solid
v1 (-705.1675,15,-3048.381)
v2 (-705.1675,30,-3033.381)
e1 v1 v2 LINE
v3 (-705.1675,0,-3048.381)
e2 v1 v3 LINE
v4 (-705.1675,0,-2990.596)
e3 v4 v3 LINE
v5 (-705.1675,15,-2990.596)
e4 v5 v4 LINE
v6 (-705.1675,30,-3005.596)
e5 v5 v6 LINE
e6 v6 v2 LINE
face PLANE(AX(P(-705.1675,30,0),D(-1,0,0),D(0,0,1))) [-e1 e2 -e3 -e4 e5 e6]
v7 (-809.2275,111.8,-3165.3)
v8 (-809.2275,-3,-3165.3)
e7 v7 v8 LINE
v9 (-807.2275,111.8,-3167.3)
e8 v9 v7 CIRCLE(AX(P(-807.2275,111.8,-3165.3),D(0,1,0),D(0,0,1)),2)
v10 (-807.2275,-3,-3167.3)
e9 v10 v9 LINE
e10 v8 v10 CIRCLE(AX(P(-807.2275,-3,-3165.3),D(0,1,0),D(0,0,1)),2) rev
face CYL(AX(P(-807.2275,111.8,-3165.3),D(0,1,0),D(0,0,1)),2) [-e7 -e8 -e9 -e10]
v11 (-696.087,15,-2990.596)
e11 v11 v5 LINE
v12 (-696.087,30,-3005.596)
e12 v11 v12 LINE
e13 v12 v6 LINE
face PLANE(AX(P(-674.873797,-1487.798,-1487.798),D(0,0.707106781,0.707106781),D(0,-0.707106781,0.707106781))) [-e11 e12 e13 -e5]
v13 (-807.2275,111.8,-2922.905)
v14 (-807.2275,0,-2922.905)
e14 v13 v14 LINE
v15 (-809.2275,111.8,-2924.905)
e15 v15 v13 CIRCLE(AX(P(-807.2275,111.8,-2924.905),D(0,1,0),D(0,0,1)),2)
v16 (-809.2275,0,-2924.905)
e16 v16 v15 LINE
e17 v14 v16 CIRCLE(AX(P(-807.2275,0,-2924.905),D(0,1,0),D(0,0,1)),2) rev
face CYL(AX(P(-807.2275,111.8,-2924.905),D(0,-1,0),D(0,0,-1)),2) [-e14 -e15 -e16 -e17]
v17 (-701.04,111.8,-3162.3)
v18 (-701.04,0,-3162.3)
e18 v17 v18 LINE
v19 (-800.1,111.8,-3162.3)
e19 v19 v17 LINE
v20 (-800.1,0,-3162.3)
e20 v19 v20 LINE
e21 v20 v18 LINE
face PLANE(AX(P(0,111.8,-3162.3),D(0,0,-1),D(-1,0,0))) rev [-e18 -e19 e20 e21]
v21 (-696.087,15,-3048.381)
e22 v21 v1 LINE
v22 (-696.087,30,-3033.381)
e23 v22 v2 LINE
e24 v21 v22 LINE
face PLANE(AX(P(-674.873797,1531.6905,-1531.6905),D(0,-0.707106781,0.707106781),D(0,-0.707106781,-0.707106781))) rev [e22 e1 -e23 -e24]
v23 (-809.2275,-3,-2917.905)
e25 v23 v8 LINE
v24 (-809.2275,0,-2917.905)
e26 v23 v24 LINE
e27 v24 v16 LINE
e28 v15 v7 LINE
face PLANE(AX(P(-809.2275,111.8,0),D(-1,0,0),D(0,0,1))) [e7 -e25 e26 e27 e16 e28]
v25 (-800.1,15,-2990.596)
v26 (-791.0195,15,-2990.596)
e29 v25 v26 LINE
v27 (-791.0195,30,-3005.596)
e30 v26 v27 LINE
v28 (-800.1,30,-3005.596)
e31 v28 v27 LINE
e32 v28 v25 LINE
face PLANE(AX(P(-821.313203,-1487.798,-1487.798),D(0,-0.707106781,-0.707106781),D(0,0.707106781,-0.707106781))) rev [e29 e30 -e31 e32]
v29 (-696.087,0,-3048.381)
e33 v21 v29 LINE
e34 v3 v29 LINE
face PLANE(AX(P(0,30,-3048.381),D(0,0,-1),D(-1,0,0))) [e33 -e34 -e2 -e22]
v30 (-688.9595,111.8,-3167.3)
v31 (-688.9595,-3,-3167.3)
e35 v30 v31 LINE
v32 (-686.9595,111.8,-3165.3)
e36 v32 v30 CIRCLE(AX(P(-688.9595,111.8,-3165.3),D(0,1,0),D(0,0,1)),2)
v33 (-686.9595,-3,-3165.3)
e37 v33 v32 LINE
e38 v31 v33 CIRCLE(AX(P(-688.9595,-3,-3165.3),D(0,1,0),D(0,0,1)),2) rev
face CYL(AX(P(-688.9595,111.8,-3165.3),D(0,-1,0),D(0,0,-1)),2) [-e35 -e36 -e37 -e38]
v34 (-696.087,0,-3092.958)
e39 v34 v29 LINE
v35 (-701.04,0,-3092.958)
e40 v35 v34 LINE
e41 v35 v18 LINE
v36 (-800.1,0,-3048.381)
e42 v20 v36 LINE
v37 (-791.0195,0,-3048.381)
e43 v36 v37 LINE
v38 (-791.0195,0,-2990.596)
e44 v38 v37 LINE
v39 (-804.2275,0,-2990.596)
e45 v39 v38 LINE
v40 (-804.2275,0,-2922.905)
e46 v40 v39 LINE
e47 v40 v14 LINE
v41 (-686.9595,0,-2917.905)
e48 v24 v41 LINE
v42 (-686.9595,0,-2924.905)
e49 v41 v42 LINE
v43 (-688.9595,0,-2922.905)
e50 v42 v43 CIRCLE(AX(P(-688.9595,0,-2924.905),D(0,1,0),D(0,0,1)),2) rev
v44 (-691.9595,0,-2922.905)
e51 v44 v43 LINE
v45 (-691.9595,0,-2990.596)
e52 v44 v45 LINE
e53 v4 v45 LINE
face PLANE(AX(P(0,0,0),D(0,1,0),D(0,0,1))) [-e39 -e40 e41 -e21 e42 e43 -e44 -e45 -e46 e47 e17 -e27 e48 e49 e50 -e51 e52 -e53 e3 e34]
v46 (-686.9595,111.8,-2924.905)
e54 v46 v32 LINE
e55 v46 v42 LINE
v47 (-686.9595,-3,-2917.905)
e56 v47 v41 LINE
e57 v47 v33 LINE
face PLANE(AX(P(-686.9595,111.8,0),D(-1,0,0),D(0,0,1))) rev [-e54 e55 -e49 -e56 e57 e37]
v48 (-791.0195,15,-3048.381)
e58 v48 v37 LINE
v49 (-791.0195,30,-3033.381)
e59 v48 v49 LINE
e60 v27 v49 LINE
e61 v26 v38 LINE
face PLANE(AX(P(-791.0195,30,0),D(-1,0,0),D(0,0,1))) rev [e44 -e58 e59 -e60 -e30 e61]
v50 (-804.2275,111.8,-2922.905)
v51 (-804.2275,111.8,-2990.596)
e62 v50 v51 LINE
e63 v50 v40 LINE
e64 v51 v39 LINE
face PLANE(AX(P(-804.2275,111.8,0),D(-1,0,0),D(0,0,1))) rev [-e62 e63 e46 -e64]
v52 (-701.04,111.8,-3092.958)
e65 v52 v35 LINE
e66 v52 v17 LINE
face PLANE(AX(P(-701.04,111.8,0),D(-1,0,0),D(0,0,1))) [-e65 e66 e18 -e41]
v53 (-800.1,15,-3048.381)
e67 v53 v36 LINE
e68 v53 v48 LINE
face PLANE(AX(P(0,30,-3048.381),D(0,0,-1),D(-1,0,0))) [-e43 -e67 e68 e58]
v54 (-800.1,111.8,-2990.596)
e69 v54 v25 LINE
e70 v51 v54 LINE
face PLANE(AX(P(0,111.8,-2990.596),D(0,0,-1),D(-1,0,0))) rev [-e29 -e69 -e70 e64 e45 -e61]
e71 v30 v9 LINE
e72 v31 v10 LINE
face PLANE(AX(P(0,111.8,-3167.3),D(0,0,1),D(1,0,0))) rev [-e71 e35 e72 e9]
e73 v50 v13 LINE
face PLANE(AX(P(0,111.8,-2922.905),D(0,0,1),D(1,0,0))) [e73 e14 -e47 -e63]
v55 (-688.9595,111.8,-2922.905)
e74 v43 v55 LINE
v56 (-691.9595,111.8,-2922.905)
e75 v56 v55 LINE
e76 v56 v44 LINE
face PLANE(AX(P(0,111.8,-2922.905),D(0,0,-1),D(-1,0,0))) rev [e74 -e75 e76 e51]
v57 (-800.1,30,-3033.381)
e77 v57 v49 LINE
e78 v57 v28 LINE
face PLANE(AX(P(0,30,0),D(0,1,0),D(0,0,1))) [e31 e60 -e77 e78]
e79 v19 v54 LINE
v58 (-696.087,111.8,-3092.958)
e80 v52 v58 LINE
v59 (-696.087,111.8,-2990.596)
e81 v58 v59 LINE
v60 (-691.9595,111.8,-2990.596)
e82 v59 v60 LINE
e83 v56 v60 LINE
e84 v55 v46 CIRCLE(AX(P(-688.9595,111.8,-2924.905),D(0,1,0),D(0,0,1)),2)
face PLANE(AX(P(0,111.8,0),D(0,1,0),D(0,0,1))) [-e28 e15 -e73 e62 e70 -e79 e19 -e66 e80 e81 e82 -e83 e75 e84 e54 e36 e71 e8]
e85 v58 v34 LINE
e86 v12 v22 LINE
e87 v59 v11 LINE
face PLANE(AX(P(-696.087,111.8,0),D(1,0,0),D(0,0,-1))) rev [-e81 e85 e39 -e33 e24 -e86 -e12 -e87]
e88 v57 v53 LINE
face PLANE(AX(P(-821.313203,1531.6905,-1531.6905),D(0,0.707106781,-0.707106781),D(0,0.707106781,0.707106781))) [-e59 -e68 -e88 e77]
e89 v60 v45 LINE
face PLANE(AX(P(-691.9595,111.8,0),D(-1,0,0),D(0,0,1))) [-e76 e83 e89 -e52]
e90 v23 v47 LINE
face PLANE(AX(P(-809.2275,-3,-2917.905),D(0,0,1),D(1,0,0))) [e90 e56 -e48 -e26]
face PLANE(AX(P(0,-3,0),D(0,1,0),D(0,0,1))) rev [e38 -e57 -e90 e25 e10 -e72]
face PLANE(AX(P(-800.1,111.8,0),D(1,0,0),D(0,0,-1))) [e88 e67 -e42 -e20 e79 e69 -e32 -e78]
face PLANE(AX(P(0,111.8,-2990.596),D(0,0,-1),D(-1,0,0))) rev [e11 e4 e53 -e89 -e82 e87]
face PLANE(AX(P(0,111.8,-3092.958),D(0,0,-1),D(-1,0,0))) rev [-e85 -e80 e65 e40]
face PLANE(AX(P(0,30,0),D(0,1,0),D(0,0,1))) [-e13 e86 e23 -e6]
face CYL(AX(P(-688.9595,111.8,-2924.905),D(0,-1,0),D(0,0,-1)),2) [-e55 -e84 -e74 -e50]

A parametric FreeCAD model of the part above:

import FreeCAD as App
import Part
import Sketcher
from FreeCAD import Vector
Q = App.Units.Quantity


def edges_at(feature, points):
    """Names of the edges that pass closest to the given points."""
    edges = feature.Shape.Edges
    near = lambda p: min(range(len(edges)), key=lambda i: edges[i].distToShape(Part.Vertex(*p))[0])
    return sorted({f"Edge{near(p) + 1}" for p in points})


def add_polygon(sketch, points):
    """Adds a closed chain of lines whose ends are joined by coincident constraints."""
    first, n = sketch.GeometryCount, len(points)
    for a, b in zip(points, points[1:] + points[:1]):
        sketch.addGeometry(Part.LineSegment(App.Vector(*a, 0), App.Vector(*b, 0)), False)
    for i in range(n):
        sketch.addConstraint(Sketcher.Constraint("Coincident", first + i, 2, first + (i + 1) % n, 1))

doc = App.newDocument("Part")
body = doc.addObject("PartDesign::Body", "Body")

# Sketch on XZ plane
sketch1 = doc.addObject("Sketcher::SketchObject", "Sketch")
body.addObject(sketch1)
sketch1.AttachmentSupport = (doc.XZ_Plane, [""])
sketch1.MapMode = "FlatFace"
add_polygon(sketch1, [(-809.2275, -2922.905), (-804.2275, -2922.905), (-804.2275, -2990.596), (-800.1, -2990.596), (-800.1, -3162.3), (-701.04, -3162.3), (-701.04, -3092.958), (-696.087, -3092.958), (-696.087, -2990.596), (-691.9595, -2990.596), (-691.9595, -2922.905), (-686.9595, -2922.905), (-686.9595, -3167.3), (-809.2275, -3167.3)])  # lines 0-13
sketch1.addConstraint(Sketcher.Constraint("Horizontal", 0))
sketch1.addConstraint(Sketcher.Constraint("Vertical", 1))
sketch1.addConstraint(Sketcher.Constraint("Horizontal", 2))
sketch1.addConstraint(Sketcher.Constraint("Vertical", 3))
sketch1.addConstraint(Sketcher.Constraint("Horizontal", 4))
sketch1.addConstraint(Sketcher.Constraint("Vertical", 5))
sketch1.addConstraint(Sketcher.Constraint("Horizontal", 6))
sketch1.addConstraint(Sketcher.Constraint("Vertical", 7))
sketch1.addConstraint(Sketcher.Constraint("Horizontal", 8))
sketch1.addConstraint(Sketcher.Constraint("Vertical", 9))
sketch1.addConstraint(Sketcher.Constraint("Horizontal", 10))
sketch1.addConstraint(Sketcher.Constraint("Vertical", 11))
sketch1.addConstraint(Sketcher.Constraint("Horizontal", 12))
sketch1.addConstraint(Sketcher.Constraint("Vertical", 13))
sketch1.addConstraint(Sketcher.Constraint("Horizontal", 2, 2, 7, 2))
sketch1.addConstraint(Sketcher.Constraint("Horizontal", 0, 2, 9, 2))
sketch1.addConstraint(Sketcher.Constraint("Equal", 2, 8))
sketch1.addConstraint(Sketcher.Constraint("Equal", 0, 10))
sketch1.addConstraint(Sketcher.Constraint("DistanceX", 4, 1, 4, 2, Q("3.9 in")))
sketch1.addConstraint(Sketcher.Constraint("DistanceY", 3, 2, 3, 1, Q("6.76 in")))
sketch1.addConstraint(Sketcher.Constraint("DistanceY", 5, 1, 5, 2, Q("2.73 in")))
sketch1.addConstraint(Sketcher.Constraint("DistanceX", 2, 2, -1, 1, Q("31.5 in")))
sketch1.addConstraint(Sketcher.Constraint("DistanceY", 3, 2, -1, 1, Q("124.5 in")))
sketch1.addConstraint(Sketcher.Constraint("DistanceX", 6, 1, 6, 2, Q("0.195 in")))
sketch1.addConstraint(Sketcher.Constraint("DistanceY", 1, 2, 1, 1, Q("2.665 in")))
sketch1.addConstraint(Sketcher.Constraint("DistanceX", 1, 2, 8, 2, Q("4.42 in")))
sketch1.addConstraint(Sketcher.Constraint("DistanceX", 0, 1, 0, 2, Q("5 mm")))
sketch1.addConstraint(Sketcher.Constraint("DistanceY", 11, 2, 11, 1, Q("244.395 mm")))
pad1 = doc.addObject("PartDesign::Pad", "Pad")
body.addObject(pad1)
pad1.Profile = sketch1
pad1.Length = 111.8
pad1.Reversed = True

# Sketch on XZ plane
sketch2 = doc.addObject("Sketcher::SketchObject", "Sketch001")
body.addObject(sketch2)
sketch2.AttachmentSupport = (doc.XZ_Plane, [""])
sketch2.MapMode = "FlatFace"
add_polygon(sketch2, [(-809.2275, -2917.905), (-809.2275, -3167.3), (-686.9595, -3167.3), (-686.9595, -2917.905)])  # lines 0-3
sketch2.addConstraint(Sketcher.Constraint("Vertical", 0))
sketch2.addConstraint(Sketcher.Constraint("Horizontal", 1))
sketch2.addConstraint(Sketcher.Constraint("Vertical", 2))
sketch2.addConstraint(Sketcher.Constraint("Horizontal", 3))
sketch2.addConstraint(Sketcher.Constraint("DistanceX", 1, 1, 1, 2, Q("122.268 mm")))
sketch2.addConstraint(Sketcher.Constraint("DistanceY", 0, 2, 0, 1, Q("249.395 mm")))
sketch2.addConstraint(Sketcher.Constraint("DistanceX", 0, 2, -1, 1, Q("809.2275 mm")))
sketch2.addConstraint(Sketcher.Constraint("DistanceY", 0, 2, -1, 1, Q("3167.3 mm")))
pad2 = doc.addObject("PartDesign::Pad", "Pad001")
body.addObject(pad2)
pad2.Profile = sketch2
pad2.Length = 3

# Sketch on XZ plane
sketch3 = doc.addObject("Sketcher::SketchObject", "Sketch002")
body.addObject(sketch3)
sketch3.AttachmentSupport = (doc.XZ_Plane, [""])
sketch3.MapMode = "FlatFace"
add_polygon(sketch3, [(-800.1, -3048.381), (-800.1, -2990.596), (-791.0195, -2990.596), (-791.0195, -3048.381)])  # lines 0-3
add_polygon(sketch3, [(-705.1675, -3048.381), (-705.1675, -2990.596), (-696.087, -2990.596), (-696.087, -3048.381)])  # lines 4-7
sketch3.addConstraint(Sketcher.Constraint("Vertical", 0))
sketch3.addConstraint(Sketcher.Constraint("Horizontal", 1))
sketch3.addConstraint(Sketcher.Constraint("Vertical", 2))
sketch3.addConstraint(Sketcher.Constraint("Horizontal", 3))
sketch3.addConstraint(Sketcher.Constraint("Vertical", 4))
sketch3.addConstraint(Sketcher.Constraint("Horizontal", 5))
sketch3.addConstraint(Sketcher.Constraint("Vertical", 6))
sketch3.addConstraint(Sketcher.Constraint("Horizontal", 7))
sketch3.addConstraint(Sketcher.Constraint("Horizontal", 1, 2, 4, 2))
sketch3.addConstraint(Sketcher.Constraint("Horizontal", 3, 2, 6, 2))
sketch3.addConstraint(Sketcher.Constraint("Equal", 3, 5))
sketch3.addConstraint(Sketcher.Constraint("DistanceX", 0, 2, -1, 1, Q("31.5 in")))
sketch3.addConstraint(Sketcher.Constraint("DistanceY", 0, 1, 0, 2, Q("2.275 in")))
sketch3.addConstraint(Sketcher.Constraint("DistanceY", 0, 2, -1, 1, Q("117.74 in")))
sketch3.addConstraint(Sketcher.Constraint("DistanceX", 1, 2, 4, 2, Q("3.38 in")))
sketch3.addConstraint(Sketcher.Constraint("DistanceX", 1, 1, 1, 2, Q("0.3575 in")))
pad3 = doc.addObject("PartDesign::Pad", "Pad002")
body.addObject(pad3)
pad3.Profile = sketch3
pad3.Length = 30
pad3.Reversed = True

# Sketch on YZ plane
sketch4 = doc.addObject("Sketcher::SketchObject", "Sketch003")
body.addObject(sketch4)
sketch4.AttachmentSupport = (doc.YZ_Plane, [""])
sketch4.MapMode = "FlatFace"
sketch4.AttachmentOffset = App.Placement(Vector(0, 0, -31.1425 * 25.4), App.Rotation())
add_polygon(sketch4, [(30, -2990.596), (15, -2990.596), (30, -3005.596)])  # lines 0-2
add_polygon(sketch4, [(30, -3048.381), (30, -3033.381), (15, -3048.381)])  # lines 3-5
sketch4.addConstraint(Sketcher.Constraint("Horizontal", 0))
sketch4.addConstraint(Sketcher.Constraint("Vertical", 2))
sketch4.addConstraint(Sketcher.Constraint("Vertical", 3))
sketch4.addConstraint(Sketcher.Constraint("Horizontal", 5))
sketch4.addConstraint(Sketcher.Constraint("Perpendicular", 1, 4))
sketch4.addConstraint(Sketcher.Constraint("Vertical", 2, 2, 3, 2))
sketch4.addConstraint(Sketcher.Constraint("Vertical", 0, 2, 4, 2))
sketch4.addConstraint(Sketcher.Constraint("Equal", 5, 2))
sketch4.addConstraint(Sketcher.Constraint("DistanceY", 0, 2, -1, 1, Q("117.74 in")))
sketch4.addConstraint(Sketcher.Constraint("DistanceY", 4, 2, -1, 1, Q("120.015 in")))
sketch4.addConstraint(Sketcher.Constraint("DistanceX", 0, 2, 0, 1, Q("15 mm")))
sketch4.addConstraint(Sketcher.Constraint("DistanceX", -1, 1, 0, 2, Q("15 mm")))
pocket1 = doc.addObject("PartDesign::Pocket", "Pocket")
body.addObject(pocket1)
pocket1.Profile = sketch4
pocket1.Length = Q("0.3575 in")

# Sketch on YZ plane
sketch5 = doc.addObject("Sketcher::SketchObject", "Sketch004")
body.addObject(sketch5)
sketch5.AttachmentSupport = (doc.YZ_Plane, [""])
sketch5.MapMode = "FlatFace"
sketch5.AttachmentOffset = App.Placement(Vector(0, 0, -27.7625 * 25.4), App.Rotation())
add_polygon(sketch5, [(30, -3048.381), (15, -3048.381), (30, -3033.381)])  # lines 0-2
add_polygon(sketch5, [(30, -2990.596), (30, -3005.596), (15, -2990.596)])  # lines 3-5
sketch5.addConstraint(Sketcher.Constraint("Horizontal", 0))
sketch5.addConstraint(Sketcher.Constraint("Vertical", 2))
sketch5.addConstraint(Sketcher.Constraint("Vertical", 3))
sketch5.addConstraint(Sketcher.Constraint("Horizontal", 5))
sketch5.addConstraint(Sketcher.Constraint("Perpendicular", 1, 4))
sketch5.addConstraint(Sketcher.Constraint("Vertical", 2, 2, 3, 2))
sketch5.addConstraint(Sketcher.Constraint("Vertical", 0, 2, 4, 2))
sketch5.addConstraint(Sketcher.Constraint("Equal", 5, 2))
sketch5.addConstraint(Sketcher.Constraint("DistanceY", 4, 2, -1, 1, Q("117.74 in")))
sketch5.addConstraint(Sketcher.Constraint("DistanceY", 0, 2, -1, 1, Q("120.015 in")))
sketch5.addConstraint(Sketcher.Constraint("DistanceX", 0, 2, 0, 1, Q("15 mm")))
sketch5.addConstraint(Sketcher.Constraint("DistanceX", -1, 1, 0, 2, Q("15 mm")))
pocket2 = doc.addObject("PartDesign::Pocket", "Pocket001")
body.addObject(pocket2)
pocket2.Profile = sketch5
pocket2.Length = Q("0.3575 in")
pocket2.Reversed = True
doc.recompute()

fillet = doc.addObject("PartDesign::Fillet", "Fillet")
body.addObject(fillet)
fillet.Base = (pocket2, edges_at(pocket2, [
    (-809.227, 55.9, -2922.905),
    (-809.227, 54.4, -3167.3),
    (-686.96, 54.4, -3167.3),
    (-686.96, 55.9, -2922.905),
]))
fillet.Radius = 2

doc.recompute()
